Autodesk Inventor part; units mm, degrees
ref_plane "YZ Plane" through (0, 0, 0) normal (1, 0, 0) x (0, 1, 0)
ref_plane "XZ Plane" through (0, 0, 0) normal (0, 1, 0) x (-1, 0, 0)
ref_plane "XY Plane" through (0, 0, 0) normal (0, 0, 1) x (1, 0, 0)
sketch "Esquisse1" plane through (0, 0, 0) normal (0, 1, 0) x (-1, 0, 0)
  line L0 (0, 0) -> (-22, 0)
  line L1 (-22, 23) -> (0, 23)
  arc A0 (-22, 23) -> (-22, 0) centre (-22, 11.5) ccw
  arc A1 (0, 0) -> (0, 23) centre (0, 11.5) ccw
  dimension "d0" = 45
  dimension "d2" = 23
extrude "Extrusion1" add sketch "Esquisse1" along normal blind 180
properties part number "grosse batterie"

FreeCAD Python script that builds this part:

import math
import FreeCAD as App
import Part
import Sketcher
Q = App.Units.Quantity

doc = App.newDocument("Part")
body = doc.addObject("PartDesign::Body", "Body")

# Sketch on XZ plane
sketch1 = body.newObject("Sketcher::SketchObject", "Sketch")
sketch1.AttachmentSupport = (doc.getObject("XZ_Plane"), [""])
sketch1.MapMode = "FlatFace"
sketch1.addGeometry([
    Part.LineSegment(App.Vector(22, 0, 0), App.Vector(0, 0, 0)),
    Part.ArcOfCircle(Part.Circle(App.Vector(0, 12, 0), App.Vector(0, 0, 1), 12), math.radians(90), math.radians(270)),
    Part.LineSegment(App.Vector(0, 23, 0), App.Vector(22, 23, 0)),
    Part.ArcOfCircle(Part.Circle(App.Vector(22, 12, 0), App.Vector(0, 0, 1), 12), math.radians(-90), math.radians(90)),
], False)
sketch1.addConstraint([
    Sketcher.Constraint("Tangent", 0, 2, 1, 2),
    Sketcher.Constraint("Tangent", 1, 1, 2, 1),
    Sketcher.Constraint("Tangent", 2, 2, 3, 2),
    Sketcher.Constraint("Tangent", 3, 1, 0, 1),
    Sketcher.Constraint("Horizontal", 0),
    Sketcher.Constraint("Horizontal", 2),
    Sketcher.Constraint("Coincident", 0, 2, -1, 1),
    Sketcher.Constraint("Radius", 1, Q("11.5 mm")),
    Sketcher.Constraint("DistanceX", 0, 2, 0, 1, Q("22 mm")),
])
pad1 = body.newObject("PartDesign::Pad", "Pad")
pad1.Profile = sketch1
pad1.Length = 180
pad1.Reversed = True

doc.recompute()
